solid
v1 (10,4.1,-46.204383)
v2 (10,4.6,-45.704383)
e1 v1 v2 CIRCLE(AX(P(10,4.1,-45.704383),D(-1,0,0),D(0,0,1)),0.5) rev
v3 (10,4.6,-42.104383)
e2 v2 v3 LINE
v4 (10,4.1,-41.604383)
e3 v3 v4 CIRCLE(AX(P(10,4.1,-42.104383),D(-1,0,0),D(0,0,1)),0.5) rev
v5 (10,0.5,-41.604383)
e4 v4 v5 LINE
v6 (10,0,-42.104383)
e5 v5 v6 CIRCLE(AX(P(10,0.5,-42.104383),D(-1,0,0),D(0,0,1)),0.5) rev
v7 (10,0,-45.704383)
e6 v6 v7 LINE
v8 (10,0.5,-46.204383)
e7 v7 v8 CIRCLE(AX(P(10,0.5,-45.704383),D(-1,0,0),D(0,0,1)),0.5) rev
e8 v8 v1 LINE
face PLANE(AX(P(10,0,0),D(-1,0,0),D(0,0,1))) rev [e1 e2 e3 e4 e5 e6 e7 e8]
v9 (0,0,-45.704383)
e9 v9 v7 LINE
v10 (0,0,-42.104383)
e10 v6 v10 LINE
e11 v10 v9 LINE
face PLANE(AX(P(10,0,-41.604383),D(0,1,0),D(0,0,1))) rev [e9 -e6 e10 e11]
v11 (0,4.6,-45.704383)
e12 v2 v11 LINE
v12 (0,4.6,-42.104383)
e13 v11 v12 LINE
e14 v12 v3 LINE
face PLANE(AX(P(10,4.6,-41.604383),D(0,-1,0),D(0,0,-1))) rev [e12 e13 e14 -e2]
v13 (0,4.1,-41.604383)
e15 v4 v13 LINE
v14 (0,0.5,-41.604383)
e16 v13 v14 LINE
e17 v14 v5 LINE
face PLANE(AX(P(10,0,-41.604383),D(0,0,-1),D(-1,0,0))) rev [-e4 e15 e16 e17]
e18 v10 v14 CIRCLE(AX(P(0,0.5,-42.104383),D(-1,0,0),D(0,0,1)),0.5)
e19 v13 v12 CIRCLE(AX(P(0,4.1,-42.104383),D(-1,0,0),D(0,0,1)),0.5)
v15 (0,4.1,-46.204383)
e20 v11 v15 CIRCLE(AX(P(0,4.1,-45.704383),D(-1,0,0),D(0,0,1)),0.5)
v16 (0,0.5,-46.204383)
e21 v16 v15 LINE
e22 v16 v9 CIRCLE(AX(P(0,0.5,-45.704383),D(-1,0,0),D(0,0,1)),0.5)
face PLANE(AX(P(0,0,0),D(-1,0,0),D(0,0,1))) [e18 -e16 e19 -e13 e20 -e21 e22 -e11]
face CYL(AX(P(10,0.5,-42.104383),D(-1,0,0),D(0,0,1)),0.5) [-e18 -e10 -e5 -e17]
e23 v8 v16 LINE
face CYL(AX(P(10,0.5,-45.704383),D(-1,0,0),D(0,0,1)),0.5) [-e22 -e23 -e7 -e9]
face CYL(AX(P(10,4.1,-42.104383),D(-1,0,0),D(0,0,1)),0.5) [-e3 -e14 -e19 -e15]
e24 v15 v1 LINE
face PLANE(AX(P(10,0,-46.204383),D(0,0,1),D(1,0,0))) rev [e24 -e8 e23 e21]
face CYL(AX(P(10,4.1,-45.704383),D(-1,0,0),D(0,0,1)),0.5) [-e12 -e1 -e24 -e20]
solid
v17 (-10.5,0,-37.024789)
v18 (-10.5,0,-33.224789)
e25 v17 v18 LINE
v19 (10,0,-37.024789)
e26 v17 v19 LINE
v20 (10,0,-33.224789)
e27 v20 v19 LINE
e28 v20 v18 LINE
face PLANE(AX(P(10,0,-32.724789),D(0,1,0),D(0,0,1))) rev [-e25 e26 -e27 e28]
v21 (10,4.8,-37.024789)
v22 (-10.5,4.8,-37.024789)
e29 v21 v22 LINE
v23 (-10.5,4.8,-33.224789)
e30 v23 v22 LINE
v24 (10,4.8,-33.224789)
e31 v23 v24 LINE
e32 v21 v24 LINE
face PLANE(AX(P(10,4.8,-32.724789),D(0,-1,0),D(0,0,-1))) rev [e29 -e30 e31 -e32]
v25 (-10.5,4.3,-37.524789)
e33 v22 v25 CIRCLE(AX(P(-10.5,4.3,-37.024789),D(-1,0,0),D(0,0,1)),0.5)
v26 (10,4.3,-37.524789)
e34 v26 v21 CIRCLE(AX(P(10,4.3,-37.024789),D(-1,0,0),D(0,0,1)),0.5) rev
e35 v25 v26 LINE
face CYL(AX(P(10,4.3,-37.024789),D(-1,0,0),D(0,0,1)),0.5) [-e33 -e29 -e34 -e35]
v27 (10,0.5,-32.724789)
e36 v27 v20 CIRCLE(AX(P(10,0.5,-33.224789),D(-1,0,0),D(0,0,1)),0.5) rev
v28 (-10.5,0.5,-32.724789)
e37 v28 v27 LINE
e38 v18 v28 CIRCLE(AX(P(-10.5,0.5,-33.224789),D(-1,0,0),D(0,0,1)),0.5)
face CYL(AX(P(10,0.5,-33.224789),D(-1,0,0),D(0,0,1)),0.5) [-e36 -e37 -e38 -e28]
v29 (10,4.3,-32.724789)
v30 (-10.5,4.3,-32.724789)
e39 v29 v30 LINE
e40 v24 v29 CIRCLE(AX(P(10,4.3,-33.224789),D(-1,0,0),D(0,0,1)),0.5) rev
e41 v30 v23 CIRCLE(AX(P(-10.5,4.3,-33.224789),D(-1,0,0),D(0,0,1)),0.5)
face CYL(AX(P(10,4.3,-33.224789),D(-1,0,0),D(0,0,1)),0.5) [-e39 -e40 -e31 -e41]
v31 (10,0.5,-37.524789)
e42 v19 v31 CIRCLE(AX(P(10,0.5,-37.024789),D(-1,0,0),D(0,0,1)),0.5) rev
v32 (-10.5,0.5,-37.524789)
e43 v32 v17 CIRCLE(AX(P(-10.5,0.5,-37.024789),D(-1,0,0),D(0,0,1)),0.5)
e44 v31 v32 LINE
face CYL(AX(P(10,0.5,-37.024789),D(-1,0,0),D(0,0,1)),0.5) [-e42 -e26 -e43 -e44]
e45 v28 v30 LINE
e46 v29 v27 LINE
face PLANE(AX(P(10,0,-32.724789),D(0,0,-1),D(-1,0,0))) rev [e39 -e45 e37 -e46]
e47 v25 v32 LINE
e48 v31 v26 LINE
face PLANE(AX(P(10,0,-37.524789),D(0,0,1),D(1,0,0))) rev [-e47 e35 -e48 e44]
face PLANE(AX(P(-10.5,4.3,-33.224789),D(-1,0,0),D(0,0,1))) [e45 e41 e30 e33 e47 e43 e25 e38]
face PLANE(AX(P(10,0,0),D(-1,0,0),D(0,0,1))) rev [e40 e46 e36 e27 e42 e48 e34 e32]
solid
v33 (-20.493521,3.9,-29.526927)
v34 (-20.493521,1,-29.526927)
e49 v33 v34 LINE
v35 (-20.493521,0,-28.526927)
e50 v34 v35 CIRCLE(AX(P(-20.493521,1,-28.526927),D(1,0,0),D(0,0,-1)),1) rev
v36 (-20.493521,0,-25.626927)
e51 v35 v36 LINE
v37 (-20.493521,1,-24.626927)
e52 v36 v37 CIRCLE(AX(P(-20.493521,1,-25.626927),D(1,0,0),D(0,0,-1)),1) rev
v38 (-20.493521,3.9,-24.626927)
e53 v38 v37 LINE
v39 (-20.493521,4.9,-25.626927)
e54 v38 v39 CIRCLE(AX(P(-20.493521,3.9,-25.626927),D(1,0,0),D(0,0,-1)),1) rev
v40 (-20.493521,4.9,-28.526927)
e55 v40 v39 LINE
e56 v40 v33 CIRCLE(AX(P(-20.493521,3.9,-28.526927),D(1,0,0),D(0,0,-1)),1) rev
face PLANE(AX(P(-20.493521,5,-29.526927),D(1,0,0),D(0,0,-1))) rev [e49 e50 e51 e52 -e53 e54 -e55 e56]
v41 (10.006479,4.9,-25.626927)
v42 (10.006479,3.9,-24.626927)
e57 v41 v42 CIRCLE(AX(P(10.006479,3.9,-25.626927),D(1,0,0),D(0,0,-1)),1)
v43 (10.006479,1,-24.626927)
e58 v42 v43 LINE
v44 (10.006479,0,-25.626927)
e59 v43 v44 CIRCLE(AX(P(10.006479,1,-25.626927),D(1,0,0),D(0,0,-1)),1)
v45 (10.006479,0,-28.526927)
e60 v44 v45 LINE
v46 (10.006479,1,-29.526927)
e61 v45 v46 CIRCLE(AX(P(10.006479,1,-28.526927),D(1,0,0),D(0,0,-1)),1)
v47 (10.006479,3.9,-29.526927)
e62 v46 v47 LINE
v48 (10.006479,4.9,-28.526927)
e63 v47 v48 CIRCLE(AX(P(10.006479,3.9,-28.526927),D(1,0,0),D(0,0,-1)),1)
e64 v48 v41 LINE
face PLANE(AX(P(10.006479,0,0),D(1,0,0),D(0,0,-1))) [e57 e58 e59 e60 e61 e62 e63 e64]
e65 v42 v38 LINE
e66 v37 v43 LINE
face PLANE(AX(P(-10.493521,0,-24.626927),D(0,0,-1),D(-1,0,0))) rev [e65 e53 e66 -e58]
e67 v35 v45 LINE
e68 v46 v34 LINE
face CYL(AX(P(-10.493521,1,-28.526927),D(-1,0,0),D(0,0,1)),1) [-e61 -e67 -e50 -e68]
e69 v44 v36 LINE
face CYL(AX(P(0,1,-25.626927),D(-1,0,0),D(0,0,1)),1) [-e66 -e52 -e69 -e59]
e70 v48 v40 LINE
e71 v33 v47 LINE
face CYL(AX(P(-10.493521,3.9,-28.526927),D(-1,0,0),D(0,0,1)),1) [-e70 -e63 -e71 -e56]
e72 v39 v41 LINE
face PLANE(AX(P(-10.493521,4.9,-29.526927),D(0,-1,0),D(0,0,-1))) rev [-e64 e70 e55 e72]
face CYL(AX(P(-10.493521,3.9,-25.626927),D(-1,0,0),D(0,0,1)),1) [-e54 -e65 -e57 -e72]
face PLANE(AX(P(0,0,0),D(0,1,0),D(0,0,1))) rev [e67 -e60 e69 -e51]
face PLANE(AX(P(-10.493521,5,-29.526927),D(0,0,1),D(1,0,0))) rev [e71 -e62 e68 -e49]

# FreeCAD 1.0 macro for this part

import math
import FreeCAD as App
import Part
import Sketcher
from FreeCAD import Vector
Q = App.Units.Quantity


def edges_at(feature, points):
    """Names of the edges that pass closest to the given points."""
    edges = feature.Shape.Edges
    near = lambda p: min(range(len(edges)), key=lambda i: edges[i].distToShape(Part.Vertex(*p))[0])
    return sorted({f"Edge{near(p) + 1}" for p in points})

doc = App.newDocument("Part")
body = doc.addObject("PartDesign::Body", "Body")

# Sketch on XZ plane
sketch1 = body.newObject("Sketcher::SketchObject", "Sketch")
sketch1.AttachmentSupport = (doc.getObject("XZ_Plane"), [""])
sketch1.MapMode = "FlatFace"
sketch1.addGeometry([
    Part.Circle(Vector(-9.8, -17.9, 0), Vector(0, 0, 1), 4.9),  # 0
    Part.LineSegment(Vector(-7.3, -15.4, 0), Vector(-12.3, -15.4, 0)),  # 1
    Part.LineSegment(Vector(-12.3, -15.4, 0), Vector(-12.3, -20.4, 0)),  # 2
    Part.LineSegment(Vector(-12.3, -20.4, 0), Vector(-7.3, -20.4, 0)),  # 3
    Part.LineSegment(Vector(-7.3, -20.4, 0), Vector(-7.3, -15.4, 0)),  # 4
], False)
sketch1.addConstraint([
    Sketcher.Constraint("Coincident", 1, 2, 2, 1),
    Sketcher.Constraint("Coincident", 2, 2, 3, 1),
    Sketcher.Constraint("Coincident", 3, 2, 4, 1),
    Sketcher.Constraint("Coincident", 4, 2, 1, 1),
    Sketcher.Constraint("Horizontal", 1),
    Sketcher.Constraint("Vertical", 2),
    Sketcher.Constraint("Horizontal", 3),
    Sketcher.Constraint("Vertical", 4),
    Sketcher.Constraint("Equal", 3, 2),
    Sketcher.Constraint("Diameter", 0, Q("9.8 mm")),
    Sketcher.Constraint("DistanceX", 1, 2, 1, 1, Q("5 mm")),
    Sketcher.Constraint("DistanceX", 1, 2, 0, 3, Q("2.5 mm")),
    Sketcher.Constraint("DistanceY", 0, 3, 1, 2, Q("2.5 mm")),
    Sketcher.Constraint("DistanceX", 0, 3, -1, 1, Q("9.777161 mm")),
    Sketcher.Constraint("DistanceY", 0, 3, -1, 1, Q("17.932244 mm")),
])
pad1 = body.newObject("PartDesign::Pad", "Pad")
pad1.Profile = sketch1
pad1.Length = 5
pad1.Reversed = True

# Sketch on XZ plane
sketch2 = body.newObject("Sketcher::SketchObject", "Sketch001")
sketch2.AttachmentSupport = (doc.getObject("XZ_Plane"), [""])
sketch2.MapMode = "FlatFace"
sketch2.AttachmentOffset = App.Placement(Vector(0, 0, -5), App.Rotation())
sketch2.addGeometry(Part.Circle(Vector(-10, -18, 0), Vector(0, 0, 1), 6), False)
sketch2.addConstraint([
    Sketcher.Constraint("Diameter", 0, Q("11.829882 mm")),
    Sketcher.Constraint("DistanceX", 0, 3, -1, 1, Q("9.777161 mm")),
    Sketcher.Constraint("DistanceY", 0, 3, -1, 1, Q("17.932244 mm")),
])
pocket1 = body.newObject("PartDesign::Pocket", "Pocket")
pocket1.Profile = sketch2
pocket1.Length = 10
pocket1.Reversed = True
body2 = doc.addObject("PartDesign::Body", "Body001")

# Sketch on XZ plane
sketch3 = body2.newObject("Sketcher::SketchObject", "Sketch002")
sketch3.AttachmentSupport = (doc.getObject("XZ_Plane001"), [""])
sketch3.MapMode = "FlatFace"
sketch3.addGeometry([
    Part.LineSegment(Vector(-20, -30, 0), Vector(-20, -25, 0)),
    Part.LineSegment(Vector(-20, -25, 0), Vector(-10, -25, 0)),
    Part.LineSegment(Vector(-10, -25, 0), Vector(-10, -30, 0)),
    Part.LineSegment(Vector(-10, -30, 0), Vector(-20, -30, 0)),
], False)
sketch3.addConstraint([
    Sketcher.Constraint("Coincident", 0, 2, 1, 1),
    Sketcher.Constraint("Coincident", 1, 2, 2, 1),
    Sketcher.Constraint("Coincident", 2, 2, 3, 1),
    Sketcher.Constraint("Coincident", 3, 2, 0, 1),
    Sketcher.Constraint("Vertical", 0),
    Sketcher.Constraint("Horizontal", 1),
    Sketcher.Constraint("Vertical", 2),
    Sketcher.Constraint("Horizontal", 3),
    Sketcher.Constraint("DistanceX", 1, 1, 1, 2, Q("10 mm")),
    Sketcher.Constraint("DistanceY", 0, 1, 0, 2, Q("5 mm")),
    Sketcher.Constraint("DistanceX", 0, 2, -1, 1, Q("20.493521 mm")),
    Sketcher.Constraint("DistanceY", 0, 2, -1, 1, Q("24.526927 mm")),
])
pad2 = body2.newObject("PartDesign::Pad", "Pad001")
pad2.Profile = sketch3
pad2.Length = 5
pad2.Reversed = True

# Sketch on YZ plane
sketch4 = body2.newObject("Sketcher::SketchObject", "Sketch003")
sketch4.AttachmentSupport = (doc.getObject("YZ_Plane001"), [""])
sketch4.MapMode = "FlatFace"
sketch4.AttachmentOffset = App.Placement(Vector(0, 0, -20.493521), App.Rotation())
sketch4.addGeometry([
    Part.LineSegment(Vector(5, -29.53, 0), Vector(4.9, -29.53, 0)),  # 0
    Part.LineSegment(Vector(4.9, -29.53, 0), Vector(4.9, -24.63, 0)),  # 1
    Part.LineSegment(Vector(4.9, -24.63, 0), Vector(0, -24.63, 0)),  # 2
    Part.LineSegment(Vector(0, -24.63, 0), Vector(0, -24.53, 0)),  # 3
    Part.LineSegment(Vector(0, -24.53, 0), Vector(5, -24.53, 0)),  # 4
    Part.LineSegment(Vector(5, -24.53, 0), Vector(5, -29.53, 0)),  # 5
], False)
sketch4.addConstraint([
    Sketcher.Constraint("Coincident", 0, 2, 1, 1),
    Sketcher.Constraint("Coincident", 1, 2, 2, 1),
    Sketcher.Constraint("Coincident", 2, 2, 3, 1),
    Sketcher.Constraint("Coincident", 3, 2, 4, 1),
    Sketcher.Constraint("Coincident", 4, 2, 5, 1),
    Sketcher.Constraint("Coincident", 5, 2, 0, 1),
    Sketcher.Constraint("Horizontal", 0),
    Sketcher.Constraint("Vertical", 1),
    Sketcher.Constraint("Horizontal", 2),
    Sketcher.Constraint("Vertical", 3),
    Sketcher.Constraint("Horizontal", 4),
    Sketcher.Constraint("Vertical", 5),
    Sketcher.Constraint("PointOnObject", 2, 2, -2),
    Sketcher.Constraint("Equal", 2, 1),
    Sketcher.Constraint("Equal", 0, 3),
    Sketcher.Constraint("DistanceX", 4, 1, 4, 2, Q("5 mm")),
    Sketcher.Constraint("DistanceX", 0, 2, 0, 1, Q("0.1 mm")),
    Sketcher.Constraint("DistanceY", 0, 2, -1, 1, Q("29.526927 mm")),
])
pocket2 = body2.newObject("PartDesign::Pocket", "Pocket001")
pocket2.Profile = sketch4
pocket2.Length = 10
pocket2.Reversed = True
doc.recompute()

fillet = body2.newObject("PartDesign::Fillet", "Fillet")
fillet.Base = (pocket2, edges_at(pocket2, [
    (-15.494, 0, -24.627),
    (-15.494, 4.9, -24.627),
    (-15.494, 4.9, -29.527),
    (-15.494, 0, -29.527),
]))
fillet.Radius = 0.5

# Sketch on YZ plane
sketch5 = body2.newObject("Sketcher::SketchObject", "Sketch004")
sketch5.AttachmentSupport = (doc.getObject("YZ_Plane001"), [""])
sketch5.MapMode = "FlatFace"
sketch5.AttachmentOffset = App.Placement(Vector(0, 0, -10.493521), App.Rotation())
sketch5.addGeometry([
    Part.LineSegment(Vector(4.9, -24.6, 0), Vector(0, -24.6, 0)),
    Part.LineSegment(Vector(0, -24.6, 0), Vector(0, -29.5, 0)),
    Part.LineSegment(Vector(0, -29.5, 0), Vector(4.9, -29.5, 0)),
    Part.LineSegment(Vector(4.9, -29.5, 0), Vector(4.9, -24.6, 0)),
], False)
sketch5.addConstraint([
    Sketcher.Constraint("Coincident", 0, 2, 1, 1),
    Sketcher.Constraint("Coincident", 1, 2, 2, 1),
    Sketcher.Constraint("Coincident", 2, 2, 3, 1),
    Sketcher.Constraint("Coincident", 3, 2, 0, 1),
    Sketcher.Constraint("Horizontal", 0),
    Sketcher.Constraint("Vertical", 1),
    Sketcher.Constraint("Horizontal", 2),
    Sketcher.Constraint("Vertical", 3),
    Sketcher.Constraint("PointOnObject", 0, 2, -2),
    Sketcher.Constraint("Equal", 2, 1),
    Sketcher.Constraint("DistanceX", 0, 2, 0, 1, Q("4.9 mm")),
    Sketcher.Constraint("DistanceY", 0, 2, -1, 1, Q("24.626927 mm")),
])
pad3 = body2.newObject("PartDesign::Pad", "Pad002")
pad3.Profile = sketch5
pad3.Length = 20.5
doc.recompute()

fillet2 = body2.newObject("PartDesign::Fillet", "Fillet001")
fillet2.Base = (pad3, edges_at(pad3, [
    (-0.244, 0, -24.627),
    (-0.244, 0, -29.527),
    (-0.244, 4.9, -29.527),
    (-0.244, 4.9, -24.627),
]))
fillet2.Radius = 1
body3 = doc.addObject("PartDesign::Body", "Body002")

# Sketch on YZ plane
sketch6 = body3.newObject("Sketcher::SketchObject", "Sketch005")
sketch6.AttachmentSupport = (doc.getObject("YZ_Plane002"), [""])
sketch6.MapMode = "FlatFace"
sketch6.addGeometry([
    Part.LineSegment(Vector(4.8, -32.7, 0), Vector(0, -32.7, 0)),
    Part.LineSegment(Vector(0, -32.7, 0), Vector(0, -37.5, 0)),
    Part.LineSegment(Vector(0, -37.5, 0), Vector(4.8, -37.5, 0)),
    Part.LineSegment(Vector(4.8, -37.5, 0), Vector(4.8, -32.7, 0)),
], False)
sketch6.addConstraint([
    Sketcher.Constraint("Coincident", 0, 2, 1, 1),
    Sketcher.Constraint("Coincident", 1, 2, 2, 1),
    Sketcher.Constraint("Coincident", 2, 2, 3, 1),
    Sketcher.Constraint("Coincident", 3, 2, 0, 1),
    Sketcher.Constraint("Horizontal", 0),
    Sketcher.Constraint("Vertical", 1),
    Sketcher.Constraint("Horizontal", 2),
    Sketcher.Constraint("Vertical", 3),
    Sketcher.Constraint("PointOnObject", 0, 2, -2),
    Sketcher.Constraint("Equal", 2, 1),
    Sketcher.Constraint("DistanceX", 0, 2, 0, 1, Q("4.8 mm")),
    Sketcher.Constraint("DistanceY", 0, 2, -1, 1, Q("32.724789 mm")),
])
pad4 = body3.newObject("PartDesign::Pad", "Pad003")
pad4.Profile = sketch6
pad4.Length = 10
doc.recompute()

fillet3 = body3.newObject("PartDesign::Fillet", "Fillet002")
fillet3.Base = (pad4, edges_at(pad4, [
    (5, 4.8, -32.725),
    (5, 4.8, -37.525),
    (5, 0, -37.525),
    (5, 0, -32.725),
]))
fillet3.Radius = 0.5

# Sketch on YZ plane
sketch7 = body3.newObject("Sketcher::SketchObject", "Sketch006")
sketch7.AttachmentSupport = (doc.getObject("YZ_Plane002"), [""])
sketch7.MapMode = "FlatFace"
sketch7.addGeometry([
    Part.LineSegment(Vector(4.8, -33.22, 0), Vector(4.8, -37.02, 0)),  # 0
    Part.ArcOfCircle(Part.Circle(Vector(4.3, -37.02, 0), Vector(0, 0, 1), 0.5), math.radians(-90), math.radians(0)),  # 1
    Part.LineSegment(Vector(4.3, -37.52, 0), Vector(0.5, -37.52, 0)),  # 2
    Part.ArcOfCircle(Part.Circle(Vector(0.5, -37.02, 0), Vector(0, 0, 1), 0.5), math.radians(180), math.radians(270)),  # 3
    Part.LineSegment(Vector(0, -37.02, 0), Vector(0, -33.22, 0)),  # 4
    Part.ArcOfCircle(Part.Circle(Vector(0.5, -33.22, 0), Vector(0, 0, 1), 0.5), math.radians(90), math.radians(180)),  # 5
    Part.LineSegment(Vector(0.5, -32.72, 0), Vector(4.3, -32.72, 0)),  # 6
    Part.ArcOfCircle(Part.Circle(Vector(4.3, -33.22, 0), Vector(0, 0, 1), 0.5), math.radians(0), math.radians(90)),  # 7
], False)
sketch7.addConstraint([
    Sketcher.Constraint("Tangent", 0, 2, 1, 2),
    Sketcher.Constraint("Tangent", 1, 1, 2, 1),
    Sketcher.Constraint("Tangent", 2, 2, 3, 2),
    Sketcher.Constraint("Tangent", 3, 1, 4, 1),
    Sketcher.Constraint("Tangent", 4, 2, 5, 2),
    Sketcher.Constraint("Tangent", 5, 1, 6, 1),
    Sketcher.Constraint("Tangent", 6, 2, 7, 2),
    Sketcher.Constraint("Tangent", 7, 1, 0, 1),
    Sketcher.Constraint("Vertical", 0),
    Sketcher.Constraint("Horizontal", 2),
    Sketcher.Constraint("Vertical", 4),
    Sketcher.Constraint("Horizontal", 6),
    Sketcher.Constraint("Equal", 1, 3),
    Sketcher.Constraint("Equal", 3, 5),
    Sketcher.Constraint("Equal", 5, 7),
    Sketcher.Constraint("PointOnObject", 3, 1, -2),
    Sketcher.Constraint("Equal", 6, 0),
    Sketcher.Constraint("Radius", 1, Q("0.5 mm")),
    Sketcher.Constraint("DistanceX", 2, 2, 2, 1, Q("3.8 mm")),
    Sketcher.Constraint("DistanceY", 1, 3, -1, 1, Q("37.024789 mm")),
])
pad5 = body3.newObject("PartDesign::Pad", "Pad004")
pad5.Profile = sketch7
pad5.Length = 10.5
pad5.Reversed = True
body4 = doc.addObject("PartDesign::Body", "Body003")

# Sketch on YZ plane
sketch8 = body4.newObject("Sketcher::SketchObject", "Sketch007")
sketch8.AttachmentSupport = (doc.getObject("YZ_Plane003"), [""])
sketch8.MapMode = "FlatFace"
sketch8.addGeometry([
    Part.LineSegment(Vector(4.6, -41.6, 0), Vector(0, -41.6, 0)),
    Part.LineSegment(Vector(0, -41.6, 0), Vector(0, -46.2, 0)),
    Part.LineSegment(Vector(0, -46.2, 0), Vector(4.6, -46.2, 0)),
    Part.LineSegment(Vector(4.6, -46.2, 0), Vector(4.6, -41.6, 0)),
], False)
sketch8.addConstraint([
    Sketcher.Constraint("Coincident", 0, 2, 1, 1),
    Sketcher.Constraint("Coincident", 1, 2, 2, 1),
    Sketcher.Constraint("Coincident", 2, 2, 3, 1),
    Sketcher.Constraint("Coincident", 3, 2, 0, 1),
    Sketcher.Constraint("Horizontal", 0),
    Sketcher.Constraint("Vertical", 1),
    Sketcher.Constraint("Horizontal", 2),
    Sketcher.Constraint("Vertical", 3),
    Sketcher.Constraint("PointOnObject", 0, 2, -2),
    Sketcher.Constraint("Equal", 2, 1),
    Sketcher.Constraint("DistanceX", 0, 2, 0, 1, Q("4.6 mm")),
    Sketcher.Constraint("DistanceY", 0, 2, -1, 1, Q("41.604383 mm")),
])
pad6 = body4.newObject("PartDesign::Pad", "Pad005")
pad6.Profile = sketch8
pad6.Length = 10
doc.recompute()

fillet4 = body4.newObject("PartDesign::Fillet", "Fillet003")
fillet4.Base = (pad6, edges_at(pad6, [
    (5, 4.6, -41.604),
    (5, 4.6, -46.204),
    (5, 0, -46.204),
    (5, 0, -41.604),
]))
fillet4.Radius = 0.5
body5 = doc.addObject("PartDesign::Body", "Body004")

# Sketch on YZ plane
sketch9 = body5.newObject("Sketcher::SketchObject", "Sketch008")
sketch9.AttachmentSupport = (doc.getObject("YZ_Plane004"), [""])
sketch9.MapMode = "FlatFace"
sketch9.addGeometry([
    Part.LineSegment(Vector(4.5, -48.7, 0), Vector(0, -48.7, 0)),
    Part.LineSegment(Vector(0, -48.7, 0), Vector(0, -53.2, 0)),
    Part.LineSegment(Vector(0, -53.2, 0), Vector(4.5, -53.2, 0)),
    Part.LineSegment(Vector(4.5, -53.2, 0), Vector(4.5, -48.7, 0)),
], False)
sketch9.addConstraint([
    Sketcher.Constraint("Coincident", 0, 2, 1, 1),
    Sketcher.Constraint("Coincident", 1, 2, 2, 1),
    Sketcher.Constraint("Coincident", 2, 2, 3, 1),
    Sketcher.Constraint("Coincident", 3, 2, 0, 1),
    Sketcher.Constraint("Horizontal", 0),
    Sketcher.Constraint("Vertical", 1),
    Sketcher.Constraint("Horizontal", 2),
    Sketcher.Constraint("Vertical", 3),
    Sketcher.Constraint("PointOnObject", 0, 2, -2),
    Sketcher.Constraint("Equal", 2, 1),
    Sketcher.Constraint("DistanceX", 0, 2, 0, 1, Q("4.5 mm")),
    Sketcher.Constraint("DistanceY", 0, 2, -1, 1, Q("48.670405 mm")),
])
pad7 = body5.newObject("PartDesign::Pad", "Pad006")
pad7.Profile = sketch9
pad7.Length = 10
doc.recompute()

fillet5 = body5.newObject("PartDesign::Fillet", "Fillet004")
fillet5.Base = (pad7, edges_at(pad7, [
    (5, 4.5, -48.67),
    (5, 4.5, -53.17),
    (5, 0, -53.17),
    (5, 0, -48.67),
]))
fillet5.Radius = 0.5

# Sketch on YZ plane
sketch10 = body5.newObject("Sketcher::SketchObject", "Sketch009")
sketch10.AttachmentSupport = (doc.getObject("YZ_Plane004"), [""])
sketch10.MapMode = "FlatFace"
sketch10.addGeometry(Part.Circle(Vector(2.4, -51, 0), Vector(0, 0, 1), 3.4), False)
sketch10.addConstraint([
    Sketcher.Constraint("Diameter", 0, Q("6.805197 mm")),
    Sketcher.Constraint("DistanceX", -1, 1, 0, 3, Q("2.355561 mm")),
    Sketcher.Constraint("DistanceY", 0, 3, -1, 1, Q("50.986808 mm")),
])
pocket3 = body5.newObject("PartDesign::Pocket", "Pocket002")
pocket3.Profile = sketch10
pocket3.Length = 10.5
pocket3.Reversed = True

doc.recompute()
